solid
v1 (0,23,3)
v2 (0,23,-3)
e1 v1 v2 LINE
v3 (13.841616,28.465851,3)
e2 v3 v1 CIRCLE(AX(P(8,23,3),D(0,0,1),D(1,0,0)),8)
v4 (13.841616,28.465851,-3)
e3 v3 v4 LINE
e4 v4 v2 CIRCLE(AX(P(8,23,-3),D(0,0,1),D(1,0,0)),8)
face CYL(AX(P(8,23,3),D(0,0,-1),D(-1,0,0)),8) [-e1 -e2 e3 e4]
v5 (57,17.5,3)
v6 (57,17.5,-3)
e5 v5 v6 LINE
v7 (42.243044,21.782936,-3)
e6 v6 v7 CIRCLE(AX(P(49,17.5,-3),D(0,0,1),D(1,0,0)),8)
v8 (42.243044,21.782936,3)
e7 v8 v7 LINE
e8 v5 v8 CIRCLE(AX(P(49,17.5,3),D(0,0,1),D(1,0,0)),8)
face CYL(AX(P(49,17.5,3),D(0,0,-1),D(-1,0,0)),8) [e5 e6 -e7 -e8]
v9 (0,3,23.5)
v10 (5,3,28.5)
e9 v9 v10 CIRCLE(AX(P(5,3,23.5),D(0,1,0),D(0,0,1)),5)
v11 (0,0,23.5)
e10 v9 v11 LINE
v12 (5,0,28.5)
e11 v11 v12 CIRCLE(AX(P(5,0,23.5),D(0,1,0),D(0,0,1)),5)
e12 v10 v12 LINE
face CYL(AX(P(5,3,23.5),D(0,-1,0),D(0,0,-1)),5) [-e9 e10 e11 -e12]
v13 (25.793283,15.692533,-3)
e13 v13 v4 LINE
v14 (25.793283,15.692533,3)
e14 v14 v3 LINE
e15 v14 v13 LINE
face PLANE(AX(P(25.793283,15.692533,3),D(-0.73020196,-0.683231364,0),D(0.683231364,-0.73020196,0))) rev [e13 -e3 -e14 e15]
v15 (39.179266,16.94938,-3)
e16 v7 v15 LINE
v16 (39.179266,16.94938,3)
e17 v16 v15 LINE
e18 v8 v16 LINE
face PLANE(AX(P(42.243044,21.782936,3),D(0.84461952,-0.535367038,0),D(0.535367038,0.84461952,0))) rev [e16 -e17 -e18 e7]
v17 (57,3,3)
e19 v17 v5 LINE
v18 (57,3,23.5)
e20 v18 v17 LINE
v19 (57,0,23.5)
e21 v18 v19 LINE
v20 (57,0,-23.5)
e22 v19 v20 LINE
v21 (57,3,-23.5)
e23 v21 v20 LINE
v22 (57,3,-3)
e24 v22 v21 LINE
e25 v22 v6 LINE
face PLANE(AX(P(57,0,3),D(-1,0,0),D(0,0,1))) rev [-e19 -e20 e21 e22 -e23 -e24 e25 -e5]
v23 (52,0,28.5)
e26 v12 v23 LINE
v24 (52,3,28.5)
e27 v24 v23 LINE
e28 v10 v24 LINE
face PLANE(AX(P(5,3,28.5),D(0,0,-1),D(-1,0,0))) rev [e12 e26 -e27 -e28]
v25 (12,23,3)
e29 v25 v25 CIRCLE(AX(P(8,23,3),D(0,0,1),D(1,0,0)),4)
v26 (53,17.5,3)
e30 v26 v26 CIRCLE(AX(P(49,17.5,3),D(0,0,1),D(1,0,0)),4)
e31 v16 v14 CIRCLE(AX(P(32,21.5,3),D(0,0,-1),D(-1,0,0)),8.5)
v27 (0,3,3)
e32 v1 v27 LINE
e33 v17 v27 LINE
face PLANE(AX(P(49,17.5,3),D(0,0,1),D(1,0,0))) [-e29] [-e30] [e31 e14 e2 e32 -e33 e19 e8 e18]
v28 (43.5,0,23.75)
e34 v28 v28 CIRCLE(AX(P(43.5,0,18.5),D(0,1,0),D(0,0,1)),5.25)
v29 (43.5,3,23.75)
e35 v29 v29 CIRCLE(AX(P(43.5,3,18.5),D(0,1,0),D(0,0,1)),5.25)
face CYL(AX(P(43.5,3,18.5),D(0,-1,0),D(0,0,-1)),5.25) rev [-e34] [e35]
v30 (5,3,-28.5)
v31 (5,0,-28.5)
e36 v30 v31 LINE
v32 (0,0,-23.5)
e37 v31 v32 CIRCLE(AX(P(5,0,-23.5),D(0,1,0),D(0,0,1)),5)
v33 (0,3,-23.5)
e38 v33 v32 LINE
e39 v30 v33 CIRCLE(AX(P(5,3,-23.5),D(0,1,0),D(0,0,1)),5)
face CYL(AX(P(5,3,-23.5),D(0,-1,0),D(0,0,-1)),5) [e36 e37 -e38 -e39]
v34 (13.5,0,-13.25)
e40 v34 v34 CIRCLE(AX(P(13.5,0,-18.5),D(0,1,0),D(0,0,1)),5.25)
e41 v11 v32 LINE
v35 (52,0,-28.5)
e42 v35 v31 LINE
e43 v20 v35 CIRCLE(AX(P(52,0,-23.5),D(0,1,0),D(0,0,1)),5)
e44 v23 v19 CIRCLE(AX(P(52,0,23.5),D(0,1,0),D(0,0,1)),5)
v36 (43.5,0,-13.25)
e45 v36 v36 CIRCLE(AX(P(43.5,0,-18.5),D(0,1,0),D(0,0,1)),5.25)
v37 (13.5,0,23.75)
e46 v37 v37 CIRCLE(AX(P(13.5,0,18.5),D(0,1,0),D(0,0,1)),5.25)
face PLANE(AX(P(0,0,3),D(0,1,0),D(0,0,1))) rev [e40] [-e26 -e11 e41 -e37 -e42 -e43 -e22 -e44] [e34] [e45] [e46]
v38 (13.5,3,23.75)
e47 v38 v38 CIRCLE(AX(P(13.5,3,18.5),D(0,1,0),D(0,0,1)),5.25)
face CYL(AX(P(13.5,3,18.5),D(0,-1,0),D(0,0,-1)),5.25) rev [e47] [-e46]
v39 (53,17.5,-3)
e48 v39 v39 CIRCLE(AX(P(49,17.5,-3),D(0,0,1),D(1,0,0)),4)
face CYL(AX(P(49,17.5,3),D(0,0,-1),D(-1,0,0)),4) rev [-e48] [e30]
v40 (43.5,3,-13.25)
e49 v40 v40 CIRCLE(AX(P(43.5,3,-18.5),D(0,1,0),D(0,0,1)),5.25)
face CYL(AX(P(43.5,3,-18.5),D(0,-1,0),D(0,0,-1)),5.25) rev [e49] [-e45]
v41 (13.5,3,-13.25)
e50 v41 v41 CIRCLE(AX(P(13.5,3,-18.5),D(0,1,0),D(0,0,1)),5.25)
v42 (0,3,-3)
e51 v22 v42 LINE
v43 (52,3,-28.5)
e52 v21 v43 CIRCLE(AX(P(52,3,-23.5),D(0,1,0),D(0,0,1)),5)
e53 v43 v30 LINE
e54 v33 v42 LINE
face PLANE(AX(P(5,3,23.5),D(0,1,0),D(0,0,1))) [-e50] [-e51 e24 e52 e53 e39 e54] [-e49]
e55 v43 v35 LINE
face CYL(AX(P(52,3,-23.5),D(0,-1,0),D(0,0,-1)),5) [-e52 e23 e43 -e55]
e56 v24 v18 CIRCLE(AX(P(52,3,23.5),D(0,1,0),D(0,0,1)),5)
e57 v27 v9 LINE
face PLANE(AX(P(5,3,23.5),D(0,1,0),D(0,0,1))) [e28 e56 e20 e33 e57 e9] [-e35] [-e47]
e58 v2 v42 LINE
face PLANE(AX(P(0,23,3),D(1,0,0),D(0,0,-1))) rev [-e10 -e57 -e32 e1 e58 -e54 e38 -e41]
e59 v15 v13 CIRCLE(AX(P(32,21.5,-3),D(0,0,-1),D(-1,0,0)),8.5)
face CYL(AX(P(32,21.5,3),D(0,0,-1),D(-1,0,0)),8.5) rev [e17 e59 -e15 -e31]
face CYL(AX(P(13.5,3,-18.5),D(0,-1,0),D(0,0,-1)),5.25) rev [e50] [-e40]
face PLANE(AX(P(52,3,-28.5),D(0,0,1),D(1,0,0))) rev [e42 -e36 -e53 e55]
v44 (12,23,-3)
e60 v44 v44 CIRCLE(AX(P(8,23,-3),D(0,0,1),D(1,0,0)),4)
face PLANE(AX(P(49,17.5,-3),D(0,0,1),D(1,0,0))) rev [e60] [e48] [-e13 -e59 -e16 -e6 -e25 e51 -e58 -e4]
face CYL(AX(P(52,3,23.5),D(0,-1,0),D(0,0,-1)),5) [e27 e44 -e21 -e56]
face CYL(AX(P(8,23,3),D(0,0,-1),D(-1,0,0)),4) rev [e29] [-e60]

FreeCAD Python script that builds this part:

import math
import FreeCAD as App
import Part
import Sketcher
Q = App.Units.Quantity

doc = App.newDocument("Part")
body = doc.addObject("PartDesign::Body", "Body")

sketch1 = body.newObject("Sketcher::SketchObject", "Sketch")
sketch1.AttachmentSupport = (doc.getObject("XY_Plane"), [""])
sketch1.MapMode = "FlatFace"
sketch1.addGeometry([
    Part.LineSegment(App.Vector(0, 0, 0), App.Vector(57, 0, 0)),
    Part.LineSegment(App.Vector(57, 0, 0), App.Vector(57, 17.5, 0)),
    Part.ArcOfCircle(Part.Circle(App.Vector(49, 17.5, 0), App.Vector(0, 0, 1), 8), math.radians(0), math.radians(147.631194)),
    Part.LineSegment(App.Vector(42.243044, 21.782936, 0), App.Vector(39.179266, 16.94938, 0)),
    Part.ArcOfCircle(Part.Circle(App.Vector(32, 21.5, 0), App.Vector(0, 0, 1), 8.5), math.radians(-136.903328), math.radians(-32.368806)),
    Part.LineSegment(App.Vector(25.793283, 15.692533, 0), App.Vector(13.841616, 28.465851, 0)),
    Part.ArcOfCircle(Part.Circle(App.Vector(8, 23, 0), App.Vector(0, 0, 1), 8), math.radians(43.096672), math.radians(180)),
    Part.LineSegment(App.Vector(0, 23, 0), App.Vector(0, 0, 0)),
    Part.Circle(App.Vector(49, 17.5, 0), App.Vector(0, 0, 1), 4),
    Part.Circle(App.Vector(8, 23, 0), App.Vector(0, 0, 1), 4),
], False)
sketch1.addConstraint([
    Sketcher.Constraint("Coincident", 0, 2, 1, 1),
    Sketcher.Constraint("Tangent", 1, 2, 2, 1),
    Sketcher.Constraint("Tangent", 2, 2, 3, 1),
    Sketcher.Constraint("Tangent", 3, 2, 4, 2),
    Sketcher.Constraint("Tangent", 4, 1, 5, 1),
    Sketcher.Constraint("Tangent", 5, 2, 6, 1),
    Sketcher.Constraint("Tangent", 6, 2, 7, 1),
    Sketcher.Constraint("Coincident", 7, 2, 0, 1),
    Sketcher.Constraint("Horizontal", 0),
    Sketcher.Constraint("Vertical", 1),
    Sketcher.Constraint("Vertical", 7),
    Sketcher.Constraint("Coincident", 7, 2, -1, 1),
    Sketcher.Constraint("Coincident", 8, 3, 2, 3),
    Sketcher.Constraint("Coincident", 9, 3, 6, 3),
    Sketcher.Constraint("Equal", 2, 6),
    Sketcher.Constraint("Equal", 8, 9),
    Sketcher.Constraint("Diameter", 8, Q("8 mm")),
    Sketcher.Constraint("Radius", 2, Q("8 mm")),
    Sketcher.Constraint("Radius", 4, Q("8.5 mm")),
    Sketcher.Constraint("DistanceX", 0, 1, 0, 2, Q("57 mm")),
    Sketcher.Constraint("DistanceY", 7, 2, 7, 1, Q("23 mm")),
    Sketcher.Constraint("DistanceY", 1, 1, 1, 2, Q("17.5 mm")),
    Sketcher.Constraint("DistanceX", -1, 1, 4, 3, Q("32 mm")),
    Sketcher.Constraint("DistanceY", 2, 3, 4, 3, Q("4 mm")),
])
pad1 = body.newObject("PartDesign::Pad", "Pad")
pad1.Profile = sketch1
pad1.Type = "TwoLengths"
pad1.Length = 3
pad1.Length2 = 3

sketch2 = body.newObject("Sketcher::SketchObject", "Sketch001")
sketch2.AttachmentSupport = (doc.getObject("XZ_Plane"), [""])
sketch2.MapMode = "FlatFace"
sketch2.addGeometry([
    Part.LineSegment(App.Vector(5, 28.5, 0), App.Vector(52, 28.5, 0)),
    Part.ArcOfCircle(Part.Circle(App.Vector(52, 23.5, 0), App.Vector(0, 0, 1), 5), math.radians(0), math.radians(90)),
    Part.LineSegment(App.Vector(57, 23.5, 0), App.Vector(57, -23.5, 0)),
    Part.ArcOfCircle(Part.Circle(App.Vector(52, -23.5, 0), App.Vector(0, 0, 1), 5), math.radians(-90), math.radians(0)),
    Part.LineSegment(App.Vector(52, -28.5, 0), App.Vector(5, -28.5, 0)),
    Part.ArcOfCircle(Part.Circle(App.Vector(5, -23.5, 0), App.Vector(0, 0, 1), 5), math.radians(180), math.radians(270)),
    Part.LineSegment(App.Vector(0, -23.5, 0), App.Vector(0, 23.5, 0)),
    Part.ArcOfCircle(Part.Circle(App.Vector(5, 23.5, 0), App.Vector(0, 0, 1), 5), math.radians(90), math.radians(180)),
    Part.Circle(App.Vector(13.5, 18.5, 0), App.Vector(0, 0, 1), 5.25),
    Part.Circle(App.Vector(43.5, 18.5, 0), App.Vector(0, 0, 1), 5.25),
    Part.Circle(App.Vector(13.5, -18.5, 0), App.Vector(0, 0, 1), 5.25),
    Part.Circle(App.Vector(43.5, -18.5, 0), App.Vector(0, 0, 1), 5.25),
], False)
sketch2.addConstraint([
    Sketcher.Constraint("Tangent", 0, 2, 1, 2),
    Sketcher.Constraint("Tangent", 1, 1, 2, 1),
    Sketcher.Constraint("Tangent", 2, 2, 3, 2),
    Sketcher.Constraint("Tangent", 3, 1, 4, 1),
    Sketcher.Constraint("Tangent", 4, 2, 5, 2),
    Sketcher.Constraint("Tangent", 5, 1, 6, 1),
    Sketcher.Constraint("Tangent", 6, 2, 7, 2),
    Sketcher.Constraint("Tangent", 7, 1, 0, 1),
    Sketcher.Constraint("Horizontal", 0),
    Sketcher.Constraint("Vertical", 2),
    Sketcher.Constraint("Horizontal", 4),
    Sketcher.Constraint("Vertical", 6),
    Sketcher.Constraint("Equal", 1, 3),
    Sketcher.Constraint("Equal", 3, 5),
    Sketcher.Constraint("Equal", 5, 7),
    Sketcher.Constraint("Equal", 8, 9),
    Sketcher.Constraint("Equal", 9, 10),
    Sketcher.Constraint("Equal", 10, 11),
    Sketcher.Constraint("Symmetric", 5, 1, 6, 2, -1, 1),
    Sketcher.Constraint("Symmetric", 8, 3, 10, 3, -1),
    Sketcher.Constraint("Symmetric", 9, 3, 11, 3, -1),
    Sketcher.Constraint("Horizontal", 8, 3, 9, 3),
    Sketcher.Constraint("Equal", 4, 2),
    Sketcher.Constraint("Radius", 1, Q("5 mm")),
    Sketcher.Constraint("Diameter", 8, Q("10.5 mm")),
    Sketcher.Constraint("DistanceX", 0, 1, 0, 2, Q("47 mm")),
    Sketcher.Constraint("DistanceY", 8, 3, 7, 3, Q("5 mm")),
    Sketcher.Constraint("DistanceX", 8, 3, 9, 3, Q("30 mm")),
    Sketcher.Constraint("DistanceX", -1, 1, 8, 3, Q("13.5 mm")),
])
pad2 = body.newObject("PartDesign::Pad", "Pad001")
pad2.Profile = sketch2
pad2.Length = 3
pad2.Reversed = True

doc.recompute()
